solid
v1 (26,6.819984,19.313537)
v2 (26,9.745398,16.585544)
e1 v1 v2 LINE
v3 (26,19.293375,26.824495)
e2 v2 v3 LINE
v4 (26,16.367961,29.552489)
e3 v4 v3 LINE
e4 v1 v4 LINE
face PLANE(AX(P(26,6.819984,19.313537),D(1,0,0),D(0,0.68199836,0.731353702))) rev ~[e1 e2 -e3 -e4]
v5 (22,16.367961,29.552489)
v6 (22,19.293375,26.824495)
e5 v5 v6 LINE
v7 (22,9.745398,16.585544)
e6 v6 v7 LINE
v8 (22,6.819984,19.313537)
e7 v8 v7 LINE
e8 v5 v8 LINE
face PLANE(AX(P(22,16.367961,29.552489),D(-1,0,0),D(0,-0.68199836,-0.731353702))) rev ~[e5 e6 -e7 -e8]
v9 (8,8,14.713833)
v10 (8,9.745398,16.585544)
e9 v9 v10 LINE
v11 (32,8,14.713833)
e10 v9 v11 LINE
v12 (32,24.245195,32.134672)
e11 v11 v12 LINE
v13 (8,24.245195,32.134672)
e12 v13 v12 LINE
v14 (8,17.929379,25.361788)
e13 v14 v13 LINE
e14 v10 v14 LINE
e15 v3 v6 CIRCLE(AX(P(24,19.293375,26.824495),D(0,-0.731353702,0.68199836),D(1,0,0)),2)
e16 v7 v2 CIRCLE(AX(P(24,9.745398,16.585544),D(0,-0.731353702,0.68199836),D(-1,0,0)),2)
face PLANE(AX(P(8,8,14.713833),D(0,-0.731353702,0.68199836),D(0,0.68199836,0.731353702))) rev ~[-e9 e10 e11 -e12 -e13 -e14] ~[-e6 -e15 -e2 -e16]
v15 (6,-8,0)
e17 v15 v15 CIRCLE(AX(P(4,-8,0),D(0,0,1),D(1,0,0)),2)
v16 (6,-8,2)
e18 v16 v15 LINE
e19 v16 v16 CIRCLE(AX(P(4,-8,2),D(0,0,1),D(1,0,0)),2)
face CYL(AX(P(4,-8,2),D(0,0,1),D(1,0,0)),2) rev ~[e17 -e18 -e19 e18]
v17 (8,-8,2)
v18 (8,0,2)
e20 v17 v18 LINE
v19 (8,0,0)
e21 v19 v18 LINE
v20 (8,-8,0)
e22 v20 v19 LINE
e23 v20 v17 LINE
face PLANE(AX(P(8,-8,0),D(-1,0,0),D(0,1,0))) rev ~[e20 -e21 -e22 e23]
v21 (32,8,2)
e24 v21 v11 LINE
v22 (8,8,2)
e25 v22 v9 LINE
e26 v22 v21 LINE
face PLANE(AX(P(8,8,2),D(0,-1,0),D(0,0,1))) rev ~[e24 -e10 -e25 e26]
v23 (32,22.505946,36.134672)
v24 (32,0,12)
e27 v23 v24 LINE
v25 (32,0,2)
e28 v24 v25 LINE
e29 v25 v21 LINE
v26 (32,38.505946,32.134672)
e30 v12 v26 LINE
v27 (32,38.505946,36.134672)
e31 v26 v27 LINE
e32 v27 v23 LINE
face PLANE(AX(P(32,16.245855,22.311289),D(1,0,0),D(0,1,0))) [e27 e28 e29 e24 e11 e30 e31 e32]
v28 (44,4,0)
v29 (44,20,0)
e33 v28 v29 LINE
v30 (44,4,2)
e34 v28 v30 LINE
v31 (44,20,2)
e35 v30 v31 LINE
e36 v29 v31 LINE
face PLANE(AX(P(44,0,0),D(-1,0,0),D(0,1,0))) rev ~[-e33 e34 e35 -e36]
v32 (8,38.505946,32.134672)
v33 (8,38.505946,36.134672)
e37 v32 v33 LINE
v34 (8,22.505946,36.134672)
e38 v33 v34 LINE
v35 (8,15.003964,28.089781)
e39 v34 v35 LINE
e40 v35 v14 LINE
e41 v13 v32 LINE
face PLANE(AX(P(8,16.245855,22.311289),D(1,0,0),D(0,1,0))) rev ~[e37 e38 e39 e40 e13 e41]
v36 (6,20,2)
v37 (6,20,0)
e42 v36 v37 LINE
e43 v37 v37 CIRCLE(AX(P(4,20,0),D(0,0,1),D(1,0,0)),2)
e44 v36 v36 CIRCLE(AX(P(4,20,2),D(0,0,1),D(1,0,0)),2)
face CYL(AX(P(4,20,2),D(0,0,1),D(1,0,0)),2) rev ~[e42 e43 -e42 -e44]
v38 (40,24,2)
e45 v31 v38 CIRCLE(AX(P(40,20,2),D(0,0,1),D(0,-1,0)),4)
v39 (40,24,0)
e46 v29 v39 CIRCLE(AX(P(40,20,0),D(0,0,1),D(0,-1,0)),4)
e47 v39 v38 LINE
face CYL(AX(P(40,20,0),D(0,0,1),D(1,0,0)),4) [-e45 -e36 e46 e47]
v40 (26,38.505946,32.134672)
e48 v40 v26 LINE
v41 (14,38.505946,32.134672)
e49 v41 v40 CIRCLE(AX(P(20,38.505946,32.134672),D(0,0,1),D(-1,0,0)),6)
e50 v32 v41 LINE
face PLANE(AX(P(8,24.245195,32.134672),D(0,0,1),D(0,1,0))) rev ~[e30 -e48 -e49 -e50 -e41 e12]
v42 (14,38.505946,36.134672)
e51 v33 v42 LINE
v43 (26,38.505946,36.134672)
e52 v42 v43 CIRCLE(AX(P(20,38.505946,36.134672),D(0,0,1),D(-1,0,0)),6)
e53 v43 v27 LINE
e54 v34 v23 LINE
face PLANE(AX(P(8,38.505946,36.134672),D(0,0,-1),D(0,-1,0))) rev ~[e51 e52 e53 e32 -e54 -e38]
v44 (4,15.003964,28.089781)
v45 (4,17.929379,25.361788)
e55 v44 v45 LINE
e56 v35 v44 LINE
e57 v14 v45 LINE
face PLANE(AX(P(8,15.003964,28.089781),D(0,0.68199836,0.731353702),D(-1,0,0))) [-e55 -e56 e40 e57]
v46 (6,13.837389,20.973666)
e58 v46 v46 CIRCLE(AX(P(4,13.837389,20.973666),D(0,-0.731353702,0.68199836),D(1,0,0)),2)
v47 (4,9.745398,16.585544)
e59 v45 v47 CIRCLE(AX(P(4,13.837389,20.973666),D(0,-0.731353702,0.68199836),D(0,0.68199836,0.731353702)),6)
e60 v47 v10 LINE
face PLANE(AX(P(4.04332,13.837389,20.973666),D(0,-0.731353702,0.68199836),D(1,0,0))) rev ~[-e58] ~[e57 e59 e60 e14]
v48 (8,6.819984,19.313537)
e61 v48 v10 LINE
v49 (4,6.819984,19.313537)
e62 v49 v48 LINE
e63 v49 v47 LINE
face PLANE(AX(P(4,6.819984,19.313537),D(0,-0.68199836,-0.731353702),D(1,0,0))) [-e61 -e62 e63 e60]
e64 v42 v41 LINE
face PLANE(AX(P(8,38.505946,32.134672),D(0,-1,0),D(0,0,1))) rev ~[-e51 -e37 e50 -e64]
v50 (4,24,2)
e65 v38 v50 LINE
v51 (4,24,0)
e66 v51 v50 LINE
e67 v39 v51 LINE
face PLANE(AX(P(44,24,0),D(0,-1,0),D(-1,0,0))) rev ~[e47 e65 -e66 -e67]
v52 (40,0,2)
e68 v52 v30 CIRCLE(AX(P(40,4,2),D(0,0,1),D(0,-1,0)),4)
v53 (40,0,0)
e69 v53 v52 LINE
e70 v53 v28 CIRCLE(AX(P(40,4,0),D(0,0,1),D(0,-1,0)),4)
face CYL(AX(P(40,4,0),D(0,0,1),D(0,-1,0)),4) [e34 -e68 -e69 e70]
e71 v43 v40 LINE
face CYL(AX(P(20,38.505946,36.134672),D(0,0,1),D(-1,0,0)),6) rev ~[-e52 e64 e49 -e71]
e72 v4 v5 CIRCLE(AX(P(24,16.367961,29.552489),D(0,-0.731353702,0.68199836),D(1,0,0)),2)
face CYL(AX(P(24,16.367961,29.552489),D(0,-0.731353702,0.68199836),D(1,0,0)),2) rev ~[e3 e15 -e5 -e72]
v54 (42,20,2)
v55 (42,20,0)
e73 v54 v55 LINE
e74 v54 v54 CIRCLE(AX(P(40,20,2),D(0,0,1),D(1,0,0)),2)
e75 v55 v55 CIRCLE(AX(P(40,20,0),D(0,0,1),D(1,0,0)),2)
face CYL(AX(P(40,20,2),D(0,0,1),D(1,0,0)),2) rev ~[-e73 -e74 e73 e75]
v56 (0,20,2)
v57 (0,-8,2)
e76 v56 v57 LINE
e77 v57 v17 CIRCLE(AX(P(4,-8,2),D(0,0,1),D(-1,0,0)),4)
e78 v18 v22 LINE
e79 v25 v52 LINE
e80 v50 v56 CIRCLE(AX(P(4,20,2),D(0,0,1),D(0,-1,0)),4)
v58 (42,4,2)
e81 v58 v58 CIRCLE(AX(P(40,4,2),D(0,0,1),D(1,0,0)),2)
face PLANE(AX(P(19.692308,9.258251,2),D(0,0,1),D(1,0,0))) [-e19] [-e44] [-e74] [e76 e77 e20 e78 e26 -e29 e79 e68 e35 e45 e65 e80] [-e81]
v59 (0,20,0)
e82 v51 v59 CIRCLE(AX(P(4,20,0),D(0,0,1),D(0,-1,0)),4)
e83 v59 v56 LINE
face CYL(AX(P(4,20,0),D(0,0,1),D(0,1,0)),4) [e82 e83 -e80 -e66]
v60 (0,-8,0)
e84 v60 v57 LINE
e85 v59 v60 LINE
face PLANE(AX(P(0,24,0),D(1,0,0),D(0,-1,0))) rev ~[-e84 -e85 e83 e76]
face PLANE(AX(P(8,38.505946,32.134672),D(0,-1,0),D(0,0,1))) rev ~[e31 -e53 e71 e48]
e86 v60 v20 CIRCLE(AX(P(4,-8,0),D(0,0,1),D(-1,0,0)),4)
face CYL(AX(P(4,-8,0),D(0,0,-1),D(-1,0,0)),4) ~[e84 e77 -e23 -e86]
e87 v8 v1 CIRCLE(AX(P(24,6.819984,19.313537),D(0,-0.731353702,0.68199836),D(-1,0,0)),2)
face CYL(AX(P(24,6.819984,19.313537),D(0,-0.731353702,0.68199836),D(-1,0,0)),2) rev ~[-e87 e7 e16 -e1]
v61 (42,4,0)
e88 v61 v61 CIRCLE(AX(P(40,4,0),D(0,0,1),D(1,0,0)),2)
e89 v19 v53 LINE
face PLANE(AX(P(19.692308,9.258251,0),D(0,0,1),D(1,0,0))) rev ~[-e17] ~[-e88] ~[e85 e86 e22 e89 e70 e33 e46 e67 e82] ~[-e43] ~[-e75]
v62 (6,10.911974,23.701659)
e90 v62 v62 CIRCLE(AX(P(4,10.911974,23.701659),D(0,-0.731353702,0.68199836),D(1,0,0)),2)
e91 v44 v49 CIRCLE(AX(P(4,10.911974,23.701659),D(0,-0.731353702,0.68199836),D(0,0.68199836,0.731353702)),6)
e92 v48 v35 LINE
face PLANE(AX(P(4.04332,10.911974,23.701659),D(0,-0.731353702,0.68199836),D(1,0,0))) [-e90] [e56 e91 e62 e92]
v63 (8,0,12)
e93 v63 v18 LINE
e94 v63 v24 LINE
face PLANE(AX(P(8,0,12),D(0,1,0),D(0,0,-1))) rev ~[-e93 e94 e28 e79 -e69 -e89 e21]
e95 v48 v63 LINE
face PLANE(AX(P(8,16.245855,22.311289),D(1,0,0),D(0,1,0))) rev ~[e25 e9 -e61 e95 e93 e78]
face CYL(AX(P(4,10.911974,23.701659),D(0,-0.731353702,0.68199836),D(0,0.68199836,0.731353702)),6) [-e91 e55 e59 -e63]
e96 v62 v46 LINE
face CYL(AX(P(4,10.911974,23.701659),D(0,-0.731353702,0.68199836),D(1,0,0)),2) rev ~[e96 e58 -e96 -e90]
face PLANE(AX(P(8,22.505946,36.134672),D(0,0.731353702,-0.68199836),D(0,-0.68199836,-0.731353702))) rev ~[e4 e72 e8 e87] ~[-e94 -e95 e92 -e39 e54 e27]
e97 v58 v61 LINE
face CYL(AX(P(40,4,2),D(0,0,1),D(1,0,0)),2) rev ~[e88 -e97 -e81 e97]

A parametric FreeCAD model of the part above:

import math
import FreeCAD as App
import Part
import Sketcher
Q = App.Units.Quantity


def edges_at(feature, points):
    """Names of the edges that pass closest to the given points."""
    edges = feature.Shape.Edges
    near = lambda p: min(range(len(edges)), key=lambda i: edges[i].distToShape(Part.Vertex(*p))[0])
    return sorted({f"Edge{near(p) + 1}" for p in points})


def add_polygon(sketch, points):
    """Adds a closed chain of lines whose ends are joined by coincident constraints."""
    first, n = sketch.GeometryCount, len(points)
    for a, b in zip(points, points[1:] + points[:1]):
        sketch.addGeometry(Part.LineSegment(App.Vector(*a, 0), App.Vector(*b, 0)), False)
    for i in range(n):
        sketch.addConstraint(Sketcher.Constraint("Coincident", first + i, 2, first + (i + 1) % n, 1))

doc = App.newDocument("Part")
body = doc.addObject("PartDesign::Body", "Body")

# Sketch on XY plane
sketch1 = doc.addObject("Sketcher::SketchObject", "Sketch")
body.addObject(sketch1)
sketch1.AttachmentSupport = (doc.XY_Plane, [""])
sketch1.MapMode = "FlatFace"
sketch1.addGeometry([
    Part.LineSegment(App.Vector(0, 24, 0), App.Vector(0, -8, 0)),  # 0
    Part.ArcOfCircle(Part.Circle(App.Vector(4, -8, 0), App.Vector(0, 0, 1), 4), math.radians(180), math.radians(360)),  # 1
    Part.LineSegment(App.Vector(8, -8, 0), App.Vector(8, 0, 0)),  # 2
    Part.LineSegment(App.Vector(8, 0, 0), App.Vector(44, 0, 0)),  # 3
    Part.LineSegment(App.Vector(44, 0, 0), App.Vector(44, 24, 0)),  # 4
    Part.LineSegment(App.Vector(44, 24, 0), App.Vector(0, 24, 0)),  # 5
], False)
sketch1.addConstraint([
    Sketcher.Constraint("Tangent", 0, 2, 1, 1),
    Sketcher.Constraint("Tangent", 1, 2, 2, 1),
    Sketcher.Constraint("Coincident", 2, 2, 3, 1),
    Sketcher.Constraint("Coincident", 3, 2, 4, 1),
    Sketcher.Constraint("Coincident", 4, 2, 5, 1),
    Sketcher.Constraint("Coincident", 5, 2, 0, 1),
    Sketcher.Constraint("Vertical", 0),
    Sketcher.Constraint("Vertical", 2),
    Sketcher.Constraint("Horizontal", 3),
    Sketcher.Constraint("Vertical", 4),
    Sketcher.Constraint("Horizontal", 5),
    Sketcher.Constraint("PointOnObject", 0, 2, -2),
    Sketcher.Constraint("PointOnObject", 2, 2, -1),
    Sketcher.Constraint("Radius", 1, Q("4 mm")),
    Sketcher.Constraint("DistanceX", 3, 1, 3, 2, Q("36 mm")),
    Sketcher.Constraint("DistanceY", 0, 2, 0, 1, Q("32 mm")),
    Sketcher.Constraint("DistanceY", 2, 1, 2, 2, Q("8 mm")),
])
pad1 = doc.addObject("PartDesign::Pad", "Pad")
body.addObject(pad1)
pad1.Profile = sketch1
pad1.Length = 2

# Sketch on YZ plane
sketch2 = doc.addObject("Sketcher::SketchObject", "Sketch001")
body.addObject(sketch2)
sketch2.AttachmentSupport = (doc.YZ_Plane, [""])
sketch2.MapMode = "FlatFace"
sketch2.AttachmentOffset = App.Placement(App.Vector(0, 0, 8), App.Rotation())
add_polygon(sketch2, [(0, 12), (0, 2), (8, 2), (8, 14.7), (24.2, 32.1), (38.5, 32.1), (38.5, 36.1), (22.5, 36.1)])  # lines 0-7
sketch2.addConstraint([
    Sketcher.Constraint("Vertical", 0),
    Sketcher.Constraint("Horizontal", 1),
    Sketcher.Constraint("Vertical", 2),
    Sketcher.Constraint("Horizontal", 4),
    Sketcher.Constraint("Vertical", 5),
    Sketcher.Constraint("Horizontal", 6),
    Sketcher.Constraint("PointOnObject", 0, 2, -2),
    Sketcher.Constraint("Parallel", 3, 7),
    Sketcher.Constraint("DistanceX", 1, 1, 1, 2, Q("8 mm")),
    Sketcher.Constraint("DistanceX", 6, 2, 6, 1, Q("16 mm")),
    Sketcher.Constraint("DistanceY", 0, 2, 0, 1, Q("10 mm")),
    Sketcher.Constraint("DistanceY", 5, 1, 5, 2, Q("4 mm")),
    Sketcher.Constraint("Angle", 3, Q("47 deg")),
    Sketcher.Constraint("Distance", 7, Q("33 mm")),
    Sketcher.Constraint("DistanceY", -1, 1, 0, 2, Q("2 mm")),
    Sketcher.Constraint("DistanceX", 4, 1, 4, 2, Q("14.260751 mm")),
])
pad2 = doc.addObject("PartDesign::Pad", "Pad001")
body.addObject(pad2)
pad2.Profile = sketch2
pad2.Length = 24

# Sketch on XY plane
sketch3 = doc.addObject("Sketcher::SketchObject", "Sketch002")
body.addObject(sketch3)
sketch3.AttachmentSupport = (doc.XY_Plane, [""])
sketch3.MapMode = "FlatFace"
sketch3.AttachmentOffset = App.Placement(App.Vector(0, 0, 2), App.Rotation())
sketch3.addGeometry([
    Part.Circle(App.Vector(4, -8, 0), App.Vector(0, 0, 1), 2),
    Part.Circle(App.Vector(40, 4, 0), App.Vector(0, 0, 1), 2),
    Part.Circle(App.Vector(40, 20, 0), App.Vector(0, 0, 1), 2),
    Part.Circle(App.Vector(4, 20, 0), App.Vector(0, 0, 1), 2),
], False)
sketch3.addConstraint([
    Sketcher.Constraint("Equal", 0, 1),
    Sketcher.Constraint("Equal", 1, 2),
    Sketcher.Constraint("Equal", 2, 3),
    Sketcher.Constraint("Horizontal", 2, 3, 3, 3),
    Sketcher.Constraint("Vertical", 1, 3, 2, 3),
    Sketcher.Constraint("Vertical", 0, 3, 3, 3),
    Sketcher.Constraint("Diameter", 0, Q("4 mm")),
    Sketcher.Constraint("DistanceX", -1, 1, 0, 3, Q("4 mm")),
    Sketcher.Constraint("DistanceY", 0, 3, -1, 1, Q("8 mm")),
    Sketcher.Constraint("DistanceX", -1, 1, 1, 3, Q("40 mm")),
    Sketcher.Constraint("DistanceY", -1, 1, 1, 3, Q("4 mm")),
    Sketcher.Constraint("DistanceY", -1, 1, 2, 3, Q("20 mm")),
])
pocket1 = doc.addObject("PartDesign::Pocket", "Pocket")
body.addObject(pocket1)
pocket1.Profile = sketch3
pocket1.Type = "ThroughAll"
doc.recompute()

fillet = doc.addObject("PartDesign::Fillet", "Fillet")
body.addObject(fillet)
fillet.Base = (pocket1, edges_at(pocket1, [(44, 0, 1), (44, 24, 1), (0, 24, 1)]))
fillet.Radius = 4

# Sketch on XY plane
sketch4 = doc.addObject("Sketcher::SketchObject", "Sketch003")
body.addObject(sketch4)
sketch4.AttachmentSupport = (doc.XY_Plane, [""])
sketch4.MapMode = "FlatFace"
sketch4.AttachmentOffset = App.Placement(App.Vector(0, 0, 36.134672), App.Rotation())
sketch4.addGeometry([
    Part.LineSegment(App.Vector(26, 39, 0), App.Vector(14, 39, 0)),
    Part.ArcOfCircle(Part.Circle(App.Vector(20, 39, 0), App.Vector(0, 0, 1), 6), math.radians(180), math.radians(360)),
], False)
sketch4.addConstraint([
    Sketcher.Constraint("Coincident", 0, 1, 1, 2),
    Sketcher.Constraint("Coincident", 1, 1, 0, 2),
    Sketcher.Constraint("Horizontal", 0),
    Sketcher.Constraint("Horizontal", 1, 3, 0, 1),
    Sketcher.Constraint("Radius", 1, Q("6 mm")),
    Sketcher.Constraint("DistanceX", -1, 1, 1, 3, Q("20 mm")),
    Sketcher.Constraint("DistanceY", -1, 1, 1, 3, Q("38.505946 mm")),
])
pocket2 = doc.addObject("PartDesign::Pocket", "Pocket001")
body.addObject(pocket2)
pocket2.Profile = sketch4
pocket2.Length = 4

# Sketch on an angled plane
sketch5 = doc.addObject("Sketcher::SketchObject", "Sketch004")
body.addObject(sketch5)
sketch5.Placement = App.Placement(App.Vector(0, -5.985384, 5.581461), App.Rotation(App.Vector(1, 0, 0), App.Vector(0, 0.68199836, 0.731353702), App.Vector(0, -0.731353702, 0.68199836), "ZXY"))
sketch5.addGeometry([
    Part.LineSegment(App.Vector(8, 18.8, 0), App.Vector(8, 30.8, 0)),  # 0
    Part.LineSegment(App.Vector(8, 30.8, 0), App.Vector(4, 30.8, 0)),  # 1
    Part.ArcOfCircle(Part.Circle(App.Vector(4, 24.8, 0), App.Vector(0, 0, 1), 6), math.radians(90), math.radians(270)),  # 2
    Part.LineSegment(App.Vector(4, 18.8, 0), App.Vector(8, 18.8, 0)),  # 3
    Part.Circle(App.Vector(4, 24.8, 0), App.Vector(0, 0, 1), 2),  # 4
], False)
sketch5.addConstraint([
    Sketcher.Constraint("Coincident", 0, 2, 1, 1),
    Sketcher.Constraint("Tangent", 1, 2, 2, 1),
    Sketcher.Constraint("Tangent", 2, 2, 3, 1),
    Sketcher.Constraint("Coincident", 3, 2, 0, 1),
    Sketcher.Constraint("Vertical", 0),
    Sketcher.Constraint("Horizontal", 1),
    Sketcher.Constraint("Horizontal", 3),
    Sketcher.Constraint("Coincident", 4, 3, 2, 3),
    Sketcher.Constraint("Diameter", 4, Q("4 mm")),
    Sketcher.Constraint("Radius", 2, Q("6 mm")),
    Sketcher.Constraint("DistanceX", 1, 2, 1, 1, Q("4 mm")),
    Sketcher.Constraint("DistanceX", -1, 1, 2, 3, Q("4 mm")),
    Sketcher.Constraint("DistanceY", -1, 1, 2, 3, Q("24.776244 mm")),
])
pad3 = doc.addObject("PartDesign::Pad", "Pad002")
body.addObject(pad3)
pad3.Profile = sketch5
pad3.Length = 4
pad3.Reversed = True

# Sketch on an angled plane
sketch6 = doc.addObject("Sketcher::SketchObject", "Sketch005")
body.addObject(sketch6)
sketch6.Placement = App.Placement(App.Vector(0, -5.985384, 5.581461), App.Rotation(App.Vector(1, 0, 0), App.Vector(0, 0.68199836, 0.731353702), App.Vector(0, -0.731353702, 0.68199836), "ZXY"))
sketch6.addGeometry([
    Part.LineSegment(App.Vector(26, 18.8, 0), App.Vector(26, 32.8, 0)),
    Part.ArcOfCircle(Part.Circle(App.Vector(24, 32.8, 0), App.Vector(0, 0, 1), 2), math.radians(0), math.radians(180)),
    Part.LineSegment(App.Vector(22, 32.8, 0), App.Vector(22, 18.8, 0)),
    Part.ArcOfCircle(Part.Circle(App.Vector(24, 18.8, 0), App.Vector(0, 0, 1), 2), math.radians(180), math.radians(360)),
], False)
sketch6.addConstraint([
    Sketcher.Constraint("Tangent", 0, 2, 1, 1),
    Sketcher.Constraint("Tangent", 1, 2, 2, 1),
    Sketcher.Constraint("Tangent", 2, 2, 3, 1),
    Sketcher.Constraint("Tangent", 3, 2, 0, 1),
    Sketcher.Constraint("Vertical", 0),
    Sketcher.Constraint("Vertical", 2),
    Sketcher.Constraint("Radius", 1, Q("2 mm")),
    Sketcher.Constraint("DistanceY", 0, 1, 0, 2, Q("14 mm")),
    Sketcher.Constraint("DistanceX", -1, 1, 1, 3, Q("24 mm")),
    Sketcher.Constraint("DistanceY", -1, 1, 1, 3, Q("32.776244 mm")),
])
pocket3 = doc.addObject("PartDesign::Pocket", "Pocket002")
body.addObject(pocket3)
pocket3.Profile = sketch6
pocket3.Length = 4

doc.recompute()
